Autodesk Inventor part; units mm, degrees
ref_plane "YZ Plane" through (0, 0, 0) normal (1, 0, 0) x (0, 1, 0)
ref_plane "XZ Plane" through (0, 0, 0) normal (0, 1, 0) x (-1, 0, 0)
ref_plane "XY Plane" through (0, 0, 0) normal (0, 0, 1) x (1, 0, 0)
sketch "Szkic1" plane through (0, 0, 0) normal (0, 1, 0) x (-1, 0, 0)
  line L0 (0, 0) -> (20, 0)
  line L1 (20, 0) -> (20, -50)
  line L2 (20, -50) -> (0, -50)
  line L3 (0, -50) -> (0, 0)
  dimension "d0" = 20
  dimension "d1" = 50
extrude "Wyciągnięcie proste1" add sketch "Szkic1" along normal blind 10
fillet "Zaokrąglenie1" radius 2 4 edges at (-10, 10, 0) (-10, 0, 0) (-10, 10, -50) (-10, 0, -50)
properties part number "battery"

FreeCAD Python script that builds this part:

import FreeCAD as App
import Part
import Sketcher

V = App.Vector


def edges_at(feature, points):
    """Names of the edges that pass closest to the given points."""
    edges = feature.Shape.Edges
    near = lambda p: min(range(len(edges)), key=lambda i: edges[i].distToShape(Part.Vertex(*p))[0])
    return sorted({f"Edge{near(p) + 1}" for p in points})


def add_polygon(sketch, points):
    """Adds a closed chain of lines whose ends are joined by coincident constraints."""
    first, n = sketch.GeometryCount, len(points)
    for a, b in zip(points, points[1:] + points[:1]):
        sketch.addGeometry(Part.LineSegment(App.Vector(*a, 0), App.Vector(*b, 0)), False)
    for i in range(n):
        sketch.addConstraint(Sketcher.Constraint("Coincident", first + i, 2, first + (i + 1) % n, 1))

doc = App.newDocument("Part")
body = doc.addObject("PartDesign::Body", "Body")

# Sketch on XZ plane
sketch1 = body.newObject("Sketcher::SketchObject", "Sketch")
sketch1.AttachmentSupport = (doc.getObject("XZ_Plane"), [""])
sketch1.MapMode = "FlatFace"
add_polygon(sketch1, [(-20, 0), (0, 0), (0, -50), (-20, -50)])  # lines 0-3
sketch1.addConstraint([
    Sketcher.Constraint("Horizontal", 0),
    Sketcher.Constraint("Vertical", 1),
    Sketcher.Constraint("Horizontal", 2),
    Sketcher.Constraint("Vertical", 3),
    Sketcher.Constraint("Coincident", 0, 2, -1, 1),
    Sketcher.Constraint("DistanceX", 0, 1, 0, 2, 20.0),
    Sketcher.Constraint("DistanceY", 1, 2, 1, 1, 50.0),
])
pad1 = body.newObject("PartDesign::Pad", "Pad")
pad1.Profile = sketch1
pad1.Length = 10
pad1.Reversed = True
doc.recompute()

fillet = body.newObject("PartDesign::Fillet", "Fillet")
fillet.Base = (pad1, edges_at(pad1, [
    (-10, 10, 0),
    (-10, 0, 0),
    (-10, 10, -50),
    (-10, 0, -50),
]))
fillet.Radius = 2

doc.recompute()
